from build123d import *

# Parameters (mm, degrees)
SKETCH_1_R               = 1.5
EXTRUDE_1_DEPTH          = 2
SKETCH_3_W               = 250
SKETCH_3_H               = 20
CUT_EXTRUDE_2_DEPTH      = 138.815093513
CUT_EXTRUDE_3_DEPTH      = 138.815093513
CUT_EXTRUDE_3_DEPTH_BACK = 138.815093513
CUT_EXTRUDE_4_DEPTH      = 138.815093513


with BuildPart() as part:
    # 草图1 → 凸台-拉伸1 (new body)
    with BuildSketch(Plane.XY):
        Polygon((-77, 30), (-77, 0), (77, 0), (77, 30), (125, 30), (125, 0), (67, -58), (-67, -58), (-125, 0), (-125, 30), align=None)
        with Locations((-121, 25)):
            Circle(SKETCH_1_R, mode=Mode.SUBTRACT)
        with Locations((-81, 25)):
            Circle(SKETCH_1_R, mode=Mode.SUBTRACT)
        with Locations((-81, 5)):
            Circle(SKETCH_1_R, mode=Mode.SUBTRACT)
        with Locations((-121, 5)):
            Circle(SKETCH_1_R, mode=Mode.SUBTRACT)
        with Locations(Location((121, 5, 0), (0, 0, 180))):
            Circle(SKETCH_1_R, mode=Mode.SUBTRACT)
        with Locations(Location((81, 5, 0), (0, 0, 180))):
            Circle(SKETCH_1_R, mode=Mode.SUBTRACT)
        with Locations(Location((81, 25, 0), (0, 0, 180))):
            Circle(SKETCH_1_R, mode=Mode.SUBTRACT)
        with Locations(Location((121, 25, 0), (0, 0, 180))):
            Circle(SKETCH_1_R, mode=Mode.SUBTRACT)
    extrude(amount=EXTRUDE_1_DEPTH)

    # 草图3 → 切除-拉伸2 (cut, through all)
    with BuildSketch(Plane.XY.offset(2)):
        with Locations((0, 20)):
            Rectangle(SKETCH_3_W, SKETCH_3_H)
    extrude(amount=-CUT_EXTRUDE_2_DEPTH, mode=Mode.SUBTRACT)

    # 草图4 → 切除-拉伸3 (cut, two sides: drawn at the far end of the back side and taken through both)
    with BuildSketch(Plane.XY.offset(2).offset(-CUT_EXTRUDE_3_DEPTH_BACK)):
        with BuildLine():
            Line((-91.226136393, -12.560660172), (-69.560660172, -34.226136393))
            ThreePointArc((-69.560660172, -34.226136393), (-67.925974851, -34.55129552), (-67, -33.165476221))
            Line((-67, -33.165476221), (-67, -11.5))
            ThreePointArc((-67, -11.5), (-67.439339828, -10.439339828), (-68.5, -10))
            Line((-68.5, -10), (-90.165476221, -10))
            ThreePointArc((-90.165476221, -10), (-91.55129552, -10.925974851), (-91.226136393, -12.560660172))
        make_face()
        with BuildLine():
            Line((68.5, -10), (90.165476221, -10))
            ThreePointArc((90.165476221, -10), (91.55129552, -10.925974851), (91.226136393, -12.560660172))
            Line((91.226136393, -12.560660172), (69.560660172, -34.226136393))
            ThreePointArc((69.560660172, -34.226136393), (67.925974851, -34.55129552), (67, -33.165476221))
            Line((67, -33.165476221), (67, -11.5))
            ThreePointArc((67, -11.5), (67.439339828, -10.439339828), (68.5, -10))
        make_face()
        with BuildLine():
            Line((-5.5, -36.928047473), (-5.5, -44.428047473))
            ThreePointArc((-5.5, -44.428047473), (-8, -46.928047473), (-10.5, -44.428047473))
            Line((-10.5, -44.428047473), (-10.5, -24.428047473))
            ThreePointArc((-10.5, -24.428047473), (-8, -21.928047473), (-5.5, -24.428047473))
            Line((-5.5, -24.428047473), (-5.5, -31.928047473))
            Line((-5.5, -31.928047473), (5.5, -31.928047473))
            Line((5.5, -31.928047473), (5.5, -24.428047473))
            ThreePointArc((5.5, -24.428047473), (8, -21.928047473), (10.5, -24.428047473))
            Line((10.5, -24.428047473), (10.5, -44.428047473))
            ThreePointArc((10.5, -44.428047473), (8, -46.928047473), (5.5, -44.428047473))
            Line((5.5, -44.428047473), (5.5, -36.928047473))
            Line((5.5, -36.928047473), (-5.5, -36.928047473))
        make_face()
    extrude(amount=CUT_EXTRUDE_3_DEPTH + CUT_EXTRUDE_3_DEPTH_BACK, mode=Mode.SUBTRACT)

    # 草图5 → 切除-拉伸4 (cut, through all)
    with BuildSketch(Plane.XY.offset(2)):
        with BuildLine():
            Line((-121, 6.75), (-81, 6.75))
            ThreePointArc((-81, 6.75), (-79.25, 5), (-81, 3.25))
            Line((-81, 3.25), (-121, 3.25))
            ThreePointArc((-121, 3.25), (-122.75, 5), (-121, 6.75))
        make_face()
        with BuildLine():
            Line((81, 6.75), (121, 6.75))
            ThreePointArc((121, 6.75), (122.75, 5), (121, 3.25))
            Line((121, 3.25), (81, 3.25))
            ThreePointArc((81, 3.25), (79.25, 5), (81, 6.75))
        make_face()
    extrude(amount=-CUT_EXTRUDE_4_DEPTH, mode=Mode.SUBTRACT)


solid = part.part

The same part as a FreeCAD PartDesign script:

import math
import FreeCAD as App
import Part
import Sketcher
from FreeCAD import Vector

doc = App.newDocument("Part")
body = doc.addObject("PartDesign::Body", "Body")

# Sketch on XY plane
sketch1 = body.newObject("Sketcher::SketchObject", "Sketch")
sketch1.AttachmentSupport = (doc.getObject("XY_Plane"), [""])
sketch1.MapMode = "FlatFace"
sketch1.addGeometry(Part.LineSegment(Vector(-77, 0, 0), Vector(-77, 30, 0)), False)
sketch1.addGeometry(Part.LineSegment(Vector(-77, 30, 0), Vector(-125, 30, 0)), False)
sketch1.addGeometry(Part.LineSegment(Vector(-125, 30, 0), Vector(-125, 0, 0)), False)
sketch1.addGeometry(Part.LineSegment(Vector(-125, 0, 0), Vector(-67, -58, 0)), False)
sketch1.addGeometry(Part.LineSegment(Vector(-67, -58, 0), Vector(67, -58, 0)), False)
sketch1.addGeometry(Part.LineSegment(Vector(67, -58, 0), Vector(125, 0, 0)), False)
sketch1.addGeometry(Part.LineSegment(Vector(125, 0, 0), Vector(125, 30, 0)), False)
sketch1.addGeometry(Part.LineSegment(Vector(125, 30, 0), Vector(77, 30, 0)), False)
sketch1.addGeometry(Part.LineSegment(Vector(77, 30, 0), Vector(77, 0, 0)), False)
sketch1.addGeometry(Part.LineSegment(Vector(77, 0, 0), Vector(-77, 0, 0)), False)
sketch1.addGeometry(Part.Circle(Vector(121, 5, 0), Vector(0, 0, 1), 1.5), False)
sketch1.addGeometry(Part.Circle(Vector(81, 5, 0), Vector(0, 0, 1), 1.5), False)
sketch1.addGeometry(Part.Circle(Vector(-81, 5, 0), Vector(0, 0, 1), 1.5), False)
sketch1.addGeometry(Part.Circle(Vector(-121, 5, 0), Vector(0, 0, 1), 1.5), False)
sketch1.addGeometry(Part.Circle(Vector(121, 25, 0), Vector(0, 0, 1), 1.5), False)
sketch1.addGeometry(Part.Circle(Vector(81, 25, 0), Vector(0, 0, 1), 1.5), False)
sketch1.addGeometry(Part.Circle(Vector(-81, 25, 0), Vector(0, 0, 1), 1.5), False)
sketch1.addGeometry(Part.Circle(Vector(-121, 25, 0), Vector(0, 0, 1), 1.5), False)
sketch1.addConstraint(Sketcher.Constraint("Coincident", 0, 2, 1, 1))
sketch1.addConstraint(Sketcher.Constraint("Coincident", 1, 2, 2, 1))
sketch1.addConstraint(Sketcher.Constraint("Coincident", 2, 2, 3, 1))
sketch1.addConstraint(Sketcher.Constraint("Coincident", 3, 2, 4, 1))
sketch1.addConstraint(Sketcher.Constraint("Coincident", 4, 2, 5, 1))
sketch1.addConstraint(Sketcher.Constraint("Coincident", 5, 2, 6, 1))
sketch1.addConstraint(Sketcher.Constraint("Coincident", 6, 2, 7, 1))
sketch1.addConstraint(Sketcher.Constraint("Coincident", 7, 2, 8, 1))
sketch1.addConstraint(Sketcher.Constraint("Coincident", 8, 2, 9, 1))
sketch1.addConstraint(Sketcher.Constraint("Coincident", 9, 2, 0, 1))
sketch1.addConstraint(Sketcher.Constraint("Vertical", 0))
sketch1.addConstraint(Sketcher.Constraint("Horizontal", 1))
sketch1.addConstraint(Sketcher.Constraint("Vertical", 2))
sketch1.addConstraint(Sketcher.Constraint("Horizontal", 4))
sketch1.addConstraint(Sketcher.Constraint("Vertical", 6))
sketch1.addConstraint(Sketcher.Constraint("Horizontal", 7))
sketch1.addConstraint(Sketcher.Constraint("Vertical", 8))
sketch1.addConstraint(Sketcher.Constraint("Horizontal", 9))
sketch1.addConstraint(Sketcher.Constraint("Equal", 10, 11))
sketch1.addConstraint(Sketcher.Constraint("Equal", 11, 12))
sketch1.addConstraint(Sketcher.Constraint("Equal", 12, 13))
sketch1.addConstraint(Sketcher.Constraint("Equal", 13, 14))
sketch1.addConstraint(Sketcher.Constraint("Equal", 14, 15))
sketch1.addConstraint(Sketcher.Constraint("Equal", 15, 16))
sketch1.addConstraint(Sketcher.Constraint("Equal", 16, 17))
sketch1.addConstraint(Sketcher.Constraint("Symmetric", 2, 2, 5, 2, -1, 1))
sketch1.addConstraint(Sketcher.Constraint("Symmetric", 8, 2, 9, 2, -1, 1))
sketch1.addConstraint(Sketcher.Constraint("Symmetric", 11, 3, 12, 3, -2))
sketch1.addConstraint(Sketcher.Constraint("Symmetric", 10, 3, 13, 3, -2))
sketch1.addConstraint(Sketcher.Constraint("Symmetric", 15, 3, 16, 3, -2))
sketch1.addConstraint(Sketcher.Constraint("Symmetric", 14, 3, 17, 3, -2))
sketch1.addConstraint(Sketcher.Constraint("PointOnObject", 2, 2, -1))
sketch1.addConstraint(Sketcher.Constraint("Perpendicular", 3, 5))
sketch1.addConstraint(Sketcher.Constraint("Horizontal", 10, 3, 11, 3))
sketch1.addConstraint(Sketcher.Constraint("Horizontal", 14, 3, 15, 3))
sketch1.addConstraint(Sketcher.Constraint("Horizontal", 1, 2, 6, 2))
sketch1.addConstraint(Sketcher.Constraint("Vertical", 10, 3, 14, 3))
sketch1.addConstraint(Sketcher.Constraint("Vertical", 11, 3, 15, 3))
sketch1.addConstraint(Sketcher.Constraint("Equal", 3, 5))
sketch1.addConstraint(Sketcher.Constraint("Diameter", 10, 3.0))
sketch1.addConstraint(Sketcher.Constraint("DistanceX", 1, 2, 1, 1, 48.0))
sketch1.addConstraint(Sketcher.Constraint("DistanceX", 4, 1, 4, 2, 134.0))
sketch1.addConstraint(Sketcher.Constraint("DistanceX", 9, 2, 9, 1, 154.0))
sketch1.addConstraint(Sketcher.Constraint("DistanceY", 0, 1, 0, 2, 30.0))
sketch1.addConstraint(Sketcher.Constraint("DistanceX", -1, 1, 10, 3, 121.0))
sketch1.addConstraint(Sketcher.Constraint("DistanceY", -1, 1, 10, 3, 5.0))
sketch1.addConstraint(Sketcher.Constraint("DistanceX", -1, 1, 11, 3, 81.0))
sketch1.addConstraint(Sketcher.Constraint("DistanceY", -1, 1, 14, 3, 25.0))
pad1 = body.newObject("PartDesign::Pad", "Pad")
pad1.Profile = sketch1
pad1.Length = 2

# Sketch on XY plane
sketch2 = body.newObject("Sketcher::SketchObject", "Sketch001")
sketch2.AttachmentSupport = (doc.getObject("XY_Plane"), [""])
sketch2.MapMode = "FlatFace"
sketch2.AttachmentOffset = App.Placement(Vector(0, 0, 2), App.Rotation())
sketch2.addGeometry(Part.LineSegment(Vector(-125, 30, 0), Vector(-125, 10, 0)), False)
sketch2.addGeometry(Part.LineSegment(Vector(-125, 10, 0), Vector(125, 10, 0)), False)
sketch2.addGeometry(Part.LineSegment(Vector(125, 10, 0), Vector(125, 30, 0)), False)
sketch2.addGeometry(Part.LineSegment(Vector(125, 30, 0), Vector(-125, 30, 0)), False)
sketch2.addConstraint(Sketcher.Constraint("Coincident", 0, 2, 1, 1))
sketch2.addConstraint(Sketcher.Constraint("Coincident", 1, 2, 2, 1))
sketch2.addConstraint(Sketcher.Constraint("Coincident", 2, 2, 3, 1))
sketch2.addConstraint(Sketcher.Constraint("Coincident", 3, 2, 0, 1))
sketch2.addConstraint(Sketcher.Constraint("Vertical", 0))
sketch2.addConstraint(Sketcher.Constraint("Horizontal", 1))
sketch2.addConstraint(Sketcher.Constraint("Vertical", 2))
sketch2.addConstraint(Sketcher.Constraint("Horizontal", 3))
sketch2.addConstraint(Sketcher.Constraint("DistanceX", 1, 1, 1, 2, 250.0))
sketch2.addConstraint(Sketcher.Constraint("DistanceY", 0, 2, 0, 1, 20.0))
sketch2.addConstraint(Sketcher.Constraint("DistanceX", 0, 2, -1, 1, 125.0))
sketch2.addConstraint(Sketcher.Constraint("DistanceY", -1, 1, 0, 2, 10.0))
pocket1 = body.newObject("PartDesign::Pocket", "Pocket")
pocket1.Profile = sketch2
pocket1.Type = "ThroughAll"

# Sketch on XY plane
sketch3 = body.newObject("Sketcher::SketchObject", "Sketch002")
sketch3.AttachmentSupport = (doc.getObject("XY_Plane"), [""])
sketch3.MapMode = "FlatFace"
sketch3.AttachmentOffset = App.Placement(Vector(0, 0, 2), App.Rotation())
sketch3.addGeometry(Part.LineSegment(Vector(-91.2, -12.6, 0), Vector(-69.6, -34.2, 0)), False)
sketch3.addGeometry(Part.ArcOfCircle(Part.Circle(Vector(-68.5, -33.2, 0), Vector(0, 0, 1), 1.5), math.radians(-135), math.radians(0)), False)
sketch3.addGeometry(Part.LineSegment(Vector(-67, -33.2, 0), Vector(-67, -11.5, 0)), False)
sketch3.addGeometry(Part.ArcOfCircle(Part.Circle(Vector(-68.5, -11.5, 0), Vector(0, 0, 1), 1.5), math.radians(0), math.radians(90)), False)
sketch3.addGeometry(Part.LineSegment(Vector(-68.5, -10, 0), Vector(-90.2, -10, 0)), False)
sketch3.addGeometry(Part.ArcOfCircle(Part.Circle(Vector(-90.2, -11.5, 0), Vector(0, 0, 1), 1.5), math.radians(90), math.radians(225)), False)
sketch3.addGeometry(Part.LineSegment(Vector(90.2, -10, 0), Vector(68.5, -10, 0)), False)
sketch3.addGeometry(Part.ArcOfCircle(Part.Circle(Vector(68.5, -11.5, 0), Vector(0, 0, 1), 1.5), math.radians(90), math.radians(180)), False)
sketch3.addGeometry(Part.LineSegment(Vector(67, -11.5, 0), Vector(67, -33.2, 0)), False)
sketch3.addGeometry(Part.ArcOfCircle(Part.Circle(Vector(68.5, -33.2, 0), Vector(0, 0, 1), 1.5), math.radians(180), math.radians(315)), False)
sketch3.addGeometry(Part.LineSegment(Vector(69.6, -34.2, 0), Vector(91.2, -12.6, 0)), False)
sketch3.addGeometry(Part.ArcOfCircle(Part.Circle(Vector(90.2, -11.5, 0), Vector(0, 0, 1), 1.5), math.radians(-45), math.radians(90)), False)
sketch3.addGeometry(Part.LineSegment(Vector(-5.5, -44.4, 0), Vector(-5.5, -36.9, 0)), False)
sketch3.addGeometry(Part.LineSegment(Vector(-5.5, -36.9, 0), Vector(5.5, -36.9, 0)), False)
sketch3.addGeometry(Part.LineSegment(Vector(5.5, -36.9, 0), Vector(5.5, -44.4, 0)), False)
sketch3.addGeometry(Part.ArcOfCircle(Part.Circle(Vector(8, -44.4, 0), Vector(0, 0, 1), 2.5), math.radians(180), math.radians(360)), False)
sketch3.addGeometry(Part.LineSegment(Vector(10.5, -44.4, 0), Vector(10.5, -24.4, 0)), False)
sketch3.addGeometry(Part.ArcOfCircle(Part.Circle(Vector(8, -24.4, 0), Vector(0, 0, 1), 2.5), math.radians(0), math.radians(180)), False)
sketch3.addGeometry(Part.LineSegment(Vector(5.5, -24.4, 0), Vector(5.5, -31.9, 0)), False)
sketch3.addGeometry(Part.LineSegment(Vector(5.5, -31.9, 0), Vector(-5.5, -31.9, 0)), False)
sketch3.addGeometry(Part.LineSegment(Vector(-5.5, -31.9, 0), Vector(-5.5, -24.4, 0)), False)
sketch3.addGeometry(Part.ArcOfCircle(Part.Circle(Vector(-8, -24.4, 0), Vector(0, 0, 1), 2.5), math.radians(0), math.radians(180)), False)
sketch3.addGeometry(Part.LineSegment(Vector(-10.5, -24.4, 0), Vector(-10.5, -44.4, 0)), False)
sketch3.addGeometry(Part.ArcOfCircle(Part.Circle(Vector(-8, -44.4, 0), Vector(0, 0, 1), 2.5), math.radians(180), math.radians(360)), False)
sketch3.addConstraint(Sketcher.Constraint("Tangent", 0, 2, 1, 1))
sketch3.addConstraint(Sketcher.Constraint("Tangent", 1, 2, 2, 1))
sketch3.addConstraint(Sketcher.Constraint("Tangent", 2, 2, 3, 1))
sketch3.addConstraint(Sketcher.Constraint("Tangent", 3, 2, 4, 1))
sketch3.addConstraint(Sketcher.Constraint("Tangent", 4, 2, 5, 1))
sketch3.addConstraint(Sketcher.Constraint("Tangent", 5, 2, 0, 1))
sketch3.addConstraint(Sketcher.Constraint("Tangent", 6, 2, 7, 1))
sketch3.addConstraint(Sketcher.Constraint("Tangent", 7, 2, 8, 1))
sketch3.addConstraint(Sketcher.Constraint("Tangent", 8, 2, 9, 1))
sketch3.addConstraint(Sketcher.Constraint("Tangent", 9, 2, 10, 1))
sketch3.addConstraint(Sketcher.Constraint("Tangent", 10, 2, 11, 1))
sketch3.addConstraint(Sketcher.Constraint("Tangent", 11, 2, 6, 1))
sketch3.addConstraint(Sketcher.Constraint("Coincident", 12, 2, 13, 1))
sketch3.addConstraint(Sketcher.Constraint("Coincident", 13, 2, 14, 1))
sketch3.addConstraint(Sketcher.Constraint("Tangent", 14, 2, 15, 1))
sketch3.addConstraint(Sketcher.Constraint("Tangent", 15, 2, 16, 1))
sketch3.addConstraint(Sketcher.Constraint("Tangent", 16, 2, 17, 1))
sketch3.addConstraint(Sketcher.Constraint("Tangent", 17, 2, 18, 1))
sketch3.addConstraint(Sketcher.Constraint("Coincident", 18, 2, 19, 1))
sketch3.addConstraint(Sketcher.Constraint("Coincident", 19, 2, 20, 1))
sketch3.addConstraint(Sketcher.Constraint("Tangent", 20, 2, 21, 1))
sketch3.addConstraint(Sketcher.Constraint("Tangent", 21, 2, 22, 1))
sketch3.addConstraint(Sketcher.Constraint("Tangent", 22, 2, 23, 1))
sketch3.addConstraint(Sketcher.Constraint("Tangent", 23, 2, 12, 1))
sketch3.addConstraint(Sketcher.Constraint("Vertical", 2))
sketch3.addConstraint(Sketcher.Constraint("Horizontal", 4))
sketch3.addConstraint(Sketcher.Constraint("Horizontal", 6))
sketch3.addConstraint(Sketcher.Constraint("Vertical", 8))
sketch3.addConstraint(Sketcher.Constraint("Vertical", 12))
sketch3.addConstraint(Sketcher.Constraint("Horizontal", 13))
sketch3.addConstraint(Sketcher.Constraint("Vertical", 14))
sketch3.addConstraint(Sketcher.Constraint("Vertical", 16))
sketch3.addConstraint(Sketcher.Constraint("Vertical", 18))
sketch3.addConstraint(Sketcher.Constraint("Horizontal", 19))
sketch3.addConstraint(Sketcher.Constraint("Vertical", 20))
sketch3.addConstraint(Sketcher.Constraint("Vertical", 22))
sketch3.addConstraint(Sketcher.Constraint("Equal", 1, 3))
sketch3.addConstraint(Sketcher.Constraint("Equal", 3, 5))
sketch3.addConstraint(Sketcher.Constraint("Equal", 5, 7))
sketch3.addConstraint(Sketcher.Constraint("Equal", 7, 9))
sketch3.addConstraint(Sketcher.Constraint("Equal", 9, 11))
sketch3.addConstraint(Sketcher.Constraint("Equal", 15, 17))
sketch3.addConstraint(Sketcher.Constraint("Equal", 17, 21))
sketch3.addConstraint(Sketcher.Constraint("Equal", 21, 23))
sketch3.addConstraint(Sketcher.Constraint("Symmetric", 3, 3, 7, 3, -2))
sketch3.addConstraint(Sketcher.Constraint("Symmetric", 17, 3, 21, 3, -2))
sketch3.addConstraint(Sketcher.Constraint("Symmetric", 0, 2, 9, 2, -2))
sketch3.addConstraint(Sketcher.Constraint("Perpendicular", 0, 10))
sketch3.addConstraint(Sketcher.Constraint("Horizontal", 15, 3, 23, 3))
sketch3.addConstraint(Sketcher.Constraint("Equal", 14, 18))
sketch3.addConstraint(Sketcher.Constraint("Radius", 1, 1.5))
sketch3.addConstraint(Sketcher.Constraint("Radius", 15, 2.5))
sketch3.addConstraint(Sketcher.Constraint("DistanceX", 13, 1, 13, 2, 11.0))
sketch3.addConstraint(Sketcher.Constraint("DistanceY", 16, 1, 16, 2, 20.0))
sketch3.addConstraint(Sketcher.Constraint("DistanceY", 12, 1, 12, 2, 7.5))
sketch3.addConstraint(Sketcher.Constraint("DistanceX", 1, 2, -1, 1, 67.0))
sketch3.addConstraint(Sketcher.Constraint("DistanceY", 3, 2, -1, 1, 10.0))
sketch3.addConstraint(Sketcher.Constraint("Distance", 0, 30.63961))
sketch3.addConstraint(Sketcher.Constraint("DistanceY", 15, 3, 9, 3, 11.262571))
pocket2 = body.newObject("PartDesign::Pocket", "Pocket001")
pocket2.Profile = sketch3
pocket2.Type = "ThroughAll"
pocket2.Midplane = True

# Sketch on XY plane
sketch4 = body.newObject("Sketcher::SketchObject", "Sketch003")
sketch4.AttachmentSupport = (doc.getObject("XY_Plane"), [""])
sketch4.MapMode = "FlatFace"
sketch4.AttachmentOffset = App.Placement(Vector(0, 0, 2), App.Rotation())
sketch4.addGeometry(Part.LineSegment(Vector(-81, 6.8, 0), Vector(-121, 6.8, 0)), False)
sketch4.addGeometry(Part.ArcOfCircle(Part.Circle(Vector(-121, 5, 0), Vector(0, 0, 1), 1.8), math.radians(90), math.radians(270)), False)
sketch4.addGeometry(Part.LineSegment(Vector(-121, 3.2, 0), Vector(-81, 3.2, 0)), False)
sketch4.addGeometry(Part.ArcOfCircle(Part.Circle(Vector(-81, 5, 0), Vector(0, 0, 1), 1.8), math.radians(-90), math.radians(90)), False)
sketch4.addGeometry(Part.LineSegment(Vector(121, 6.8, 0), Vector(81, 6.8, 0)), False)
sketch4.addGeometry(Part.ArcOfCircle(Part.Circle(Vector(81, 5, 0), Vector(0, 0, 1), 1.8), math.radians(90), math.radians(270)), False)
sketch4.addGeometry(Part.LineSegment(Vector(81, 3.2, 0), Vector(121, 3.2, 0)), False)
sketch4.addGeometry(Part.ArcOfCircle(Part.Circle(Vector(121, 5, 0), Vector(0, 0, 1), 1.8), math.radians(-90), math.radians(90)), False)
sketch4.addConstraint(Sketcher.Constraint("Tangent", 0, 2, 1, 1))
sketch4.addConstraint(Sketcher.Constraint("Tangent", 1, 2, 2, 1))
sketch4.addConstraint(Sketcher.Constraint("Tangent", 2, 2, 3, 1))
sketch4.addConstraint(Sketcher.Constraint("Tangent", 3, 2, 0, 1))
sketch4.addConstraint(Sketcher.Constraint("Tangent", 4, 2, 5, 1))
sketch4.addConstraint(Sketcher.Constraint("Tangent", 5, 2, 6, 1))
sketch4.addConstraint(Sketcher.Constraint("Tangent", 6, 2, 7, 1))
sketch4.addConstraint(Sketcher.Constraint("Tangent", 7, 2, 4, 1))
sketch4.addConstraint(Sketcher.Constraint("Horizontal", 0))
sketch4.addConstraint(Sketcher.Constraint("Horizontal", 2))
sketch4.addConstraint(Sketcher.Constraint("Horizontal", 4))
sketch4.addConstraint(Sketcher.Constraint("Horizontal", 6))
sketch4.addConstraint(Sketcher.Constraint("Equal", 3, 5))
sketch4.addConstraint(Sketcher.Constraint("Symmetric", 3, 3, 5, 3, -2))
sketch4.addConstraint(Sketcher.Constraint("Equal", 2, 4))
sketch4.addConstraint(Sketcher.Constraint("DistanceX", 0, 2, 0, 1, 40.0))
sketch4.addConstraint(Sketcher.Constraint("Radius", 1, 1.75))
sketch4.addConstraint(Sketcher.Constraint("DistanceX", 1, 3, -1, 1, 121.0))
sketch4.addConstraint(Sketcher.Constraint("DistanceY", -1, 1, 1, 3, 5.0))
pocket3 = body.newObject("PartDesign::Pocket", "Pocket002")
pocket3.Profile = sketch4
pocket3.Type = "ThroughAll"

doc.recompute()
